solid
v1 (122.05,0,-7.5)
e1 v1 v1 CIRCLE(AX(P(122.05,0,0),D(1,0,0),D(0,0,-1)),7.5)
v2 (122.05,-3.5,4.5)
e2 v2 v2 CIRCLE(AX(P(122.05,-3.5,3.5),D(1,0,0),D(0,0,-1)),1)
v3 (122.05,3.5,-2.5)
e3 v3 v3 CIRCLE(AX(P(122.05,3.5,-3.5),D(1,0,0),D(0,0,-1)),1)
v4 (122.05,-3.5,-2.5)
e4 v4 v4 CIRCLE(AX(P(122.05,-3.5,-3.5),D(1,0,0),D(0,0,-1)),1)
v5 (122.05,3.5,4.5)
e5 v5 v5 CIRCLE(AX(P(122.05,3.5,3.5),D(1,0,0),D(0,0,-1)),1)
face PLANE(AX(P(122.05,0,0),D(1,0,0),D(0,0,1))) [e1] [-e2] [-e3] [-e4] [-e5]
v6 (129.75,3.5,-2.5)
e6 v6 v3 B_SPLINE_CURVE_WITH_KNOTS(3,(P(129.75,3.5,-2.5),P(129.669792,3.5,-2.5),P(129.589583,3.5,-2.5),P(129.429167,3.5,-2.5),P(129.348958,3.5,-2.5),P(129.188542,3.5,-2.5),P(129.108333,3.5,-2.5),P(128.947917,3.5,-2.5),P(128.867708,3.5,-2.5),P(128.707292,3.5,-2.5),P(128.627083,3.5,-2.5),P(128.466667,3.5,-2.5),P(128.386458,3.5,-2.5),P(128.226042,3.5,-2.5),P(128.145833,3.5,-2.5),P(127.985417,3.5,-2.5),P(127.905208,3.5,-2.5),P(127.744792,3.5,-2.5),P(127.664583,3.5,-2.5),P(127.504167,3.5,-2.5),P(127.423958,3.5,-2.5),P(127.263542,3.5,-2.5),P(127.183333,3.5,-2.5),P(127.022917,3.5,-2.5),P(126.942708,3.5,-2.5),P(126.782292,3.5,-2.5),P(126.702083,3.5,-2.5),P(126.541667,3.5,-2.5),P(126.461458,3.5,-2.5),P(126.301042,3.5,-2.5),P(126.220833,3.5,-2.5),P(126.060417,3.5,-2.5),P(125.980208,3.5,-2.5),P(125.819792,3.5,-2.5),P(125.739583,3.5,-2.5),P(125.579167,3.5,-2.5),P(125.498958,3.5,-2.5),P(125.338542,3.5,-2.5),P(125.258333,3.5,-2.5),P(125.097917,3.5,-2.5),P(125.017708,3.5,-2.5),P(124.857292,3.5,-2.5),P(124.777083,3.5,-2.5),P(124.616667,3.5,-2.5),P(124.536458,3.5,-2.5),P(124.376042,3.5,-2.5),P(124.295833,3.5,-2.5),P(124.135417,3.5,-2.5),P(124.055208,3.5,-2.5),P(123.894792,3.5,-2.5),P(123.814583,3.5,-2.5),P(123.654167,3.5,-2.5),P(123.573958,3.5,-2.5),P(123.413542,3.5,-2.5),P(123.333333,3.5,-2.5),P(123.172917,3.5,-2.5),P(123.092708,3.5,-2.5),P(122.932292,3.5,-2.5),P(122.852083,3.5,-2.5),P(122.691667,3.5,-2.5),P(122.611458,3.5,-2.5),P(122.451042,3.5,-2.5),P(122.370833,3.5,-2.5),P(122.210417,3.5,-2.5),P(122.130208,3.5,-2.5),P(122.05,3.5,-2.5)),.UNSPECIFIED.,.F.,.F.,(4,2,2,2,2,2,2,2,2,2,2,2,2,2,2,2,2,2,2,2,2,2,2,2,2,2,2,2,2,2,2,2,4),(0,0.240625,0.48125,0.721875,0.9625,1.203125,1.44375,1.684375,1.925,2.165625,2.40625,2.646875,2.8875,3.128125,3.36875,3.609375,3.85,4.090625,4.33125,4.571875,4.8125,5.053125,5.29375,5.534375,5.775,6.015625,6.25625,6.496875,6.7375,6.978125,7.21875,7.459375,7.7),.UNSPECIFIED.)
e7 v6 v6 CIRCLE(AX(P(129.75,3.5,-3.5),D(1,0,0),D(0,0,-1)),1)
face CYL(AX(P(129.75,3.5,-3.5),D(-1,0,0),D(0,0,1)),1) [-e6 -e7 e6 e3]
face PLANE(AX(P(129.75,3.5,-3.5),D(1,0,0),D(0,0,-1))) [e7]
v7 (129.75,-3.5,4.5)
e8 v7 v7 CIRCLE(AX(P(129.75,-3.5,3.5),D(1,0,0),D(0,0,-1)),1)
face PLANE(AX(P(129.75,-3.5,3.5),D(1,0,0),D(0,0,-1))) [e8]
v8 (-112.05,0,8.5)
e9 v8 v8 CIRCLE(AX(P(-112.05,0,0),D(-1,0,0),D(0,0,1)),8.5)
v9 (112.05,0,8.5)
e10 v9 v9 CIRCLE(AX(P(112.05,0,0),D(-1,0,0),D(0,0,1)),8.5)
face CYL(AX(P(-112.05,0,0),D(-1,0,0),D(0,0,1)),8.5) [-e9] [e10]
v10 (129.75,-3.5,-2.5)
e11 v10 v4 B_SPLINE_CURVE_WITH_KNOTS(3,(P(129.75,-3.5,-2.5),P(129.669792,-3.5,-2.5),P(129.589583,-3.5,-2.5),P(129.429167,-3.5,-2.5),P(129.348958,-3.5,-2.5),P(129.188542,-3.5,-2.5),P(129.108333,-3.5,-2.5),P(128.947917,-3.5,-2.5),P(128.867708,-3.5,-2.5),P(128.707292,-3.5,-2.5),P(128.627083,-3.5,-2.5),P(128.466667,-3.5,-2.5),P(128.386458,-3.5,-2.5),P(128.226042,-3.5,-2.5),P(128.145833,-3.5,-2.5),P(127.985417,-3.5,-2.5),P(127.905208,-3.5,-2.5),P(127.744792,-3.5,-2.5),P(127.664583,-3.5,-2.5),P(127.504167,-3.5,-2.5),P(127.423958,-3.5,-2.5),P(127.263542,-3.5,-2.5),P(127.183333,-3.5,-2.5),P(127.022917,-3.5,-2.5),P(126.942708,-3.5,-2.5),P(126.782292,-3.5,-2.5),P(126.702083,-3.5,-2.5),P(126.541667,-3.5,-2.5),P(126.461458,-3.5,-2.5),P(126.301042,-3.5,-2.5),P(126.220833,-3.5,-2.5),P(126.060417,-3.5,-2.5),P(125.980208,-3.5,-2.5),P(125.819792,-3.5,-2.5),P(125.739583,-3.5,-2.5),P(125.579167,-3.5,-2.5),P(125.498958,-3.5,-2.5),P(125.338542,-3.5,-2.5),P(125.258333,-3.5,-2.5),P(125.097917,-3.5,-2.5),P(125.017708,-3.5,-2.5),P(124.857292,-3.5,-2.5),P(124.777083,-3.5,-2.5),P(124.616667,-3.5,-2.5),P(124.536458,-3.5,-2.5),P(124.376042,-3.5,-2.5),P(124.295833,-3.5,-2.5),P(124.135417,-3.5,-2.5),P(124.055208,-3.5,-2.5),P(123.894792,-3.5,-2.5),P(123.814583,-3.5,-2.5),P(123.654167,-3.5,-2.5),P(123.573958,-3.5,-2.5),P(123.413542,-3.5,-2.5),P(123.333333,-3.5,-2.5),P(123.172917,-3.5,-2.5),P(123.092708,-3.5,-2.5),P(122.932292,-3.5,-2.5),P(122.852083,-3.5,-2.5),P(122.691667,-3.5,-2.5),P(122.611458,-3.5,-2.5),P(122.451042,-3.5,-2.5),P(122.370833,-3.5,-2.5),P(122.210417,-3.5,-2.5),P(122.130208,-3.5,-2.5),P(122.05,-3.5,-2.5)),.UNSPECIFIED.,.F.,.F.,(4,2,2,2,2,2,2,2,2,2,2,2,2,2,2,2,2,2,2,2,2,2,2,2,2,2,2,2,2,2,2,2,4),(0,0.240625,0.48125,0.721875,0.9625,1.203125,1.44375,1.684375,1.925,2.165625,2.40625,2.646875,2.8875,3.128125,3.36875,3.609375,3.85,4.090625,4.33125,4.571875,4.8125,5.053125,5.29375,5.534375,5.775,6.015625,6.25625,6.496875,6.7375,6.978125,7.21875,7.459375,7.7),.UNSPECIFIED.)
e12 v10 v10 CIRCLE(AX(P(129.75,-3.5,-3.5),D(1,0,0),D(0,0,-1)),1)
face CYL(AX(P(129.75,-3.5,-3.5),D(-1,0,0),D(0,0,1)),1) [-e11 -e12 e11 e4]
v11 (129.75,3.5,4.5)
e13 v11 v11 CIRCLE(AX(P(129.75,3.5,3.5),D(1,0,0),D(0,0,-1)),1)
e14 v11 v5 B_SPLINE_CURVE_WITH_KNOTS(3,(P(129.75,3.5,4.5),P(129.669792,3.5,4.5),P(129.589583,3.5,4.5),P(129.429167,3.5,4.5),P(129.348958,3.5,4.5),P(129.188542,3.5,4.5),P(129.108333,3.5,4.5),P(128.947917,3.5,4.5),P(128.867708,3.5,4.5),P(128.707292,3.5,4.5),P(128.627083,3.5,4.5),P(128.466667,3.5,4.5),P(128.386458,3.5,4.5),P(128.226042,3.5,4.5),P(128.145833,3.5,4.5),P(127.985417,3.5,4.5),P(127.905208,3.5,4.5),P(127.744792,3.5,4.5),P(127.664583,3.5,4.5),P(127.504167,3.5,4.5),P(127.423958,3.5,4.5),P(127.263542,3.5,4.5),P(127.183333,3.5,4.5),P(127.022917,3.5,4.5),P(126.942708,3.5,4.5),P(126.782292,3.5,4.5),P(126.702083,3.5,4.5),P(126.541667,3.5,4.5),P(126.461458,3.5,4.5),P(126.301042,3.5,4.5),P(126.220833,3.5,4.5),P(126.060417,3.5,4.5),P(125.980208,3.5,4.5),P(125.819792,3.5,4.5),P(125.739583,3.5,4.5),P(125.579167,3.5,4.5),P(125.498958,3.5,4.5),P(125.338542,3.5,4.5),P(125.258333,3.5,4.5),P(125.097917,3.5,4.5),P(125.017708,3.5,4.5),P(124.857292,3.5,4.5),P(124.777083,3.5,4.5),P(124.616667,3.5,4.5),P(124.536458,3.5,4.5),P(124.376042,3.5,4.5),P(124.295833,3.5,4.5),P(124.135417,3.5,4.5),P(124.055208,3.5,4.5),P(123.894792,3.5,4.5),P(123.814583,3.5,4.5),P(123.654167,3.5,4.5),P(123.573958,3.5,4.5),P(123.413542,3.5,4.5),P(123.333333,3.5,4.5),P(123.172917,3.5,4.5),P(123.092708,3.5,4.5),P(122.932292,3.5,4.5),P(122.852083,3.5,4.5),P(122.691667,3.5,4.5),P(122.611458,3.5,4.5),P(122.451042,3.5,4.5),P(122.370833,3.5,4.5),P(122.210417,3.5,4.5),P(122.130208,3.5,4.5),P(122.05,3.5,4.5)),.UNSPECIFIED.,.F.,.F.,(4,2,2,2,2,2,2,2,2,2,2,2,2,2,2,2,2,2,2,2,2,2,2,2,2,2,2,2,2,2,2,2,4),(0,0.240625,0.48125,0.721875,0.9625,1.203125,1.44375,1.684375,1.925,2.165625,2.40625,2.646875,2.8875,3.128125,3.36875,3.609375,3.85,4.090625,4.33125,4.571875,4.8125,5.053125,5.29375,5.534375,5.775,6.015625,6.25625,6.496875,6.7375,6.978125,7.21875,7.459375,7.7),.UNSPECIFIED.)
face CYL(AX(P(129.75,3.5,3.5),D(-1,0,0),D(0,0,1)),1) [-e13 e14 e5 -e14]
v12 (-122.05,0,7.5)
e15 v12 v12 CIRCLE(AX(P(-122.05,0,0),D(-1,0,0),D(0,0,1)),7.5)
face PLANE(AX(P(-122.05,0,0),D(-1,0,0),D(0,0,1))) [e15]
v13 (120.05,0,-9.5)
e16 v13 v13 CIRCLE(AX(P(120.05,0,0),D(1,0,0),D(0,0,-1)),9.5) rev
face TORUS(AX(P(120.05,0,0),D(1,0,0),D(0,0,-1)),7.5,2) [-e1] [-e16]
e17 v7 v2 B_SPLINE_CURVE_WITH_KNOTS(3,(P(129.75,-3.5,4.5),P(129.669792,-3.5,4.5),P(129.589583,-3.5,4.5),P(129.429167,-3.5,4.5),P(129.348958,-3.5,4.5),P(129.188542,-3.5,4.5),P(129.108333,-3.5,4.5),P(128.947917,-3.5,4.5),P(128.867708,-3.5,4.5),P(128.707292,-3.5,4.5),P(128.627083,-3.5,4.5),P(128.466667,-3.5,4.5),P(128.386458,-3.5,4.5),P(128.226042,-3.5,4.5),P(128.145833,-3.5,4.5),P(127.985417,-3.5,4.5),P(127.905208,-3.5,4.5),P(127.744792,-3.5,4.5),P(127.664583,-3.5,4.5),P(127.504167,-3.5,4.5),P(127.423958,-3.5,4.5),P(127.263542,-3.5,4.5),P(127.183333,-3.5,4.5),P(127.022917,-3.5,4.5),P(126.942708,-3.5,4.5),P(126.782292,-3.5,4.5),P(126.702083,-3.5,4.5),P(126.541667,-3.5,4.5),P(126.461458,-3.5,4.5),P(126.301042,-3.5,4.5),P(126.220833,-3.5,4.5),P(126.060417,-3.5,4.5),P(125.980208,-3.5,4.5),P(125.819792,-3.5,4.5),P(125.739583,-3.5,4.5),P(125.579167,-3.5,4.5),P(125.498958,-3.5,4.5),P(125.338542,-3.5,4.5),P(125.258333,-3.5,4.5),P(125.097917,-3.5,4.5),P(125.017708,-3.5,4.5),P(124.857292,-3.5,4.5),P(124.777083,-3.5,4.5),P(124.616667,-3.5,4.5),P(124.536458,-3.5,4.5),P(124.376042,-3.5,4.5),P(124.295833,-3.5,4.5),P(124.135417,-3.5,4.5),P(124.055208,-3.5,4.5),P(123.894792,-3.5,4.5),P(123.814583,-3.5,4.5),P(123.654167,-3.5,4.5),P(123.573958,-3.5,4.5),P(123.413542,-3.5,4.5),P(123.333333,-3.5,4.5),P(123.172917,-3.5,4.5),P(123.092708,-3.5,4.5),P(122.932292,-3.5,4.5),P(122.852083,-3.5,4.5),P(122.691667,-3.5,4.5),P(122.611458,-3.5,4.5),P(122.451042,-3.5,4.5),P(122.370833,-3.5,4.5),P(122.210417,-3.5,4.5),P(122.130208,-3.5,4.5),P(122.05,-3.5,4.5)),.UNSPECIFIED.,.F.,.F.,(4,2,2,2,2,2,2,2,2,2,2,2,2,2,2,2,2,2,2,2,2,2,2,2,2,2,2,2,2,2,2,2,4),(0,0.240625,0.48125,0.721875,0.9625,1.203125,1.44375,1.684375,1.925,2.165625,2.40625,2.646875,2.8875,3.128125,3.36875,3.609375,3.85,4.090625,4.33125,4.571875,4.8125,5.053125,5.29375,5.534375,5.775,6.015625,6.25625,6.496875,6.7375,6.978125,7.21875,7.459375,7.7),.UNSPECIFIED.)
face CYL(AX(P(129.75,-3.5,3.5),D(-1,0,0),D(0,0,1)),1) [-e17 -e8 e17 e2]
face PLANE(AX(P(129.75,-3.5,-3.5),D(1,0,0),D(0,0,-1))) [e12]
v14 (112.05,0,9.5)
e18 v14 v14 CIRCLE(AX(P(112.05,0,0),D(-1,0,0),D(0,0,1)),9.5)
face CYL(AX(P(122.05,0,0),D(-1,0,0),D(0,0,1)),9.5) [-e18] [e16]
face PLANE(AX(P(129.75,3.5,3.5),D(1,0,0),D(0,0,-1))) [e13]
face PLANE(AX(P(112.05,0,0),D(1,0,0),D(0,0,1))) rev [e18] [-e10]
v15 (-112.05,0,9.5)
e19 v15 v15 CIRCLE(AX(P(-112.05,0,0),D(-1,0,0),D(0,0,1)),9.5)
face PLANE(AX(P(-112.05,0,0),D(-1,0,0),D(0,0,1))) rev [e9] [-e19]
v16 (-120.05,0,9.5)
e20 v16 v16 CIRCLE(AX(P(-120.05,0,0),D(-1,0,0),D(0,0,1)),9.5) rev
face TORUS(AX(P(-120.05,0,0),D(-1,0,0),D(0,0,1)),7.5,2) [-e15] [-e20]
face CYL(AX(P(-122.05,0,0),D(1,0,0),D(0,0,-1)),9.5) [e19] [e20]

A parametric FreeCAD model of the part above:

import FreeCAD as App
import Part
import Sketcher

V = App.Vector


def edges_at(feature, points):
    """Names of the edges that pass closest to the given points."""
    edges = feature.Shape.Edges
    near = lambda p: min(range(len(edges)), key=lambda i: edges[i].distToShape(Part.Vertex(*p))[0])
    return sorted({f"Edge{near(p) + 1}" for p in points})

doc = App.newDocument("Part")
params = doc.addObject("Spreadsheet::Sheet", "Params")
for row, (alias, value) in enumerate([
    ("sketch1_width", "224.1 mm"),
    ("sketch1_height", "8.5 mm"),
    ("revolution_angle", "360 deg"),
    ("sketch2_diameter", "19 mm"),
    ("pad1_length", "10 mm"),
    ("fillet_radius", "2 mm"),
    ("sketch3_diameter", "2 mm"),
    ("pad2_length", "7.7 mm"),
], start=1):
    params.set(f"A{row}", alias)
    params.set(f"B{row}", "=" + value)
    params.setAlias(f"B{row}", alias)

body = doc.addObject("PartDesign::Body", "Body")

# Sketch on XZ plane
sketch1 = body.newObject("Sketcher::SketchObject", "Sketch")
sketch1.AttachmentSupport = (doc.getObject("XZ_Plane"), [""])
sketch1.MapMode = "FlatFace"
sketch1.addGeometry([
    Part.LineSegment(V(-112, -8, 0), V(-112, 0, 0)),
    Part.LineSegment(V(-112, 0, 0), V(112, 0, 0)),
    Part.LineSegment(V(112, 0, 0), V(112, -8, 0)),
    Part.LineSegment(V(112, -8, 0), V(-112, -8, 0)),
], False)
sketch1.addConstraint([
    Sketcher.Constraint("Coincident", 0, 2, 1, 1),
    Sketcher.Constraint("Coincident", 1, 2, 2, 1),
    Sketcher.Constraint("Coincident", 2, 2, 3, 1),
    Sketcher.Constraint("Coincident", 3, 2, 0, 1),
    Sketcher.Constraint("Vertical", 0),
    Sketcher.Constraint("Horizontal", 1),
    Sketcher.Constraint("Vertical", 2),
    Sketcher.Constraint("Horizontal", 3),
    Sketcher.Constraint("Symmetric", 0, 2, 1, 2, -1, 1),
    Sketcher.Constraint("DistanceX", 1, 1, 1, 2, 224.1),
    Sketcher.Constraint("DistanceY", 0, 1, 0, 2, 8.5),
])
sketch1.setExpression("Constraints[9]", "Params.sketch1_width")
sketch1.setExpression("Constraints[10]", "Params.sketch1_height")
revolution = body.newObject("PartDesign::Revolution", "Revolution")
revolution.Profile = sketch1
revolution.ReferenceAxis = (sketch1, ["H_Axis"])
revolution.setExpression("Angle", "Params.revolution_angle")

# Sketch on YZ plane
sketch2 = body.newObject("Sketcher::SketchObject", "Sketch001")
sketch2.AttachmentSupport = (doc.getObject("YZ_Plane"), [""])
sketch2.MapMode = "FlatFace"
sketch2.AttachmentOffset = App.Placement(V(0, 0, -112.05), App.Rotation())
sketch2.addGeometry(Part.Circle(V(0, 0, 0), V(0, 0, 1), 10), False)
sketch2.addConstraint([
    Sketcher.Constraint("Coincident", 0, 3, -1, 1),
    Sketcher.Constraint("Diameter", 0, 19.0),
])
sketch2.setExpression("Constraints[1]", "Params.sketch2_diameter")
pad1 = body.newObject("PartDesign::Pad", "Pad")
pad1.Profile = sketch2
pad1.setExpression("Length", "Params.pad1_length")
pad1.Reversed = True
doc.recompute()

mirrored = body.newObject("PartDesign::Mirrored", "Mirrored")
mirrored.Originals = [pad1]
mirrored.MirrorPlane = (doc.getObject("YZ_Plane"), [""])
body.Tip = mirrored
doc.recompute()

fillet = body.newObject("PartDesign::Fillet", "Fillet")
fillet.Base = (mirrored, edges_at(mirrored, [(122.05, 0, -9.5), (-122.05, 0, -9.5)]))
fillet.setExpression("Radius", "Params.fillet_radius")

# Sketch on YZ plane
sketch3 = body.newObject("Sketcher::SketchObject", "Sketch002")
sketch3.AttachmentSupport = (doc.getObject("YZ_Plane"), [""])
sketch3.MapMode = "FlatFace"
sketch3.AttachmentOffset = App.Placement(V(0, 0, 122.05), App.Rotation())
sketch3.addGeometry([
    Part.Circle(V(3.5, 3.5, 0), V(0, 0, 1), 1),
    Part.Circle(V(3.5, -3.5, 0), V(0, 0, 1), 1),
    Part.Circle(V(-3.5, -3.5, 0), V(0, 0, 1), 1),
    Part.Circle(V(-3.5, 3.5, 0), V(0, 0, 1), 1),
], False)
sketch3.addConstraint([
    Sketcher.Constraint("Equal", 0, 1),
    Sketcher.Constraint("Equal", 1, 2),
    Sketcher.Constraint("Equal", 2, 3),
    Sketcher.Constraint("Symmetric", 0, 3, 2, 3, -1, 1),
    Sketcher.Constraint("Symmetric", 1, 3, 3, 3, -1, 1),
    Sketcher.Constraint("Symmetric", 1, 3, 2, 3, -2),
    Sketcher.Constraint("Diameter", 0, 2.0),
    Sketcher.Constraint("DistanceY", 1, 3, 0, 3, 7.0),
    Sketcher.Constraint("DistanceX", 2, 3, 1, 3, 7.0),
])
sketch3.setExpression("Constraints[6]", "Params.sketch3_diameter")
pad2 = body.newObject("PartDesign::Pad", "Pad001")
pad2.Profile = sketch3
pad2.setExpression("Length", "Params.pad2_length")

doc.recompute()
